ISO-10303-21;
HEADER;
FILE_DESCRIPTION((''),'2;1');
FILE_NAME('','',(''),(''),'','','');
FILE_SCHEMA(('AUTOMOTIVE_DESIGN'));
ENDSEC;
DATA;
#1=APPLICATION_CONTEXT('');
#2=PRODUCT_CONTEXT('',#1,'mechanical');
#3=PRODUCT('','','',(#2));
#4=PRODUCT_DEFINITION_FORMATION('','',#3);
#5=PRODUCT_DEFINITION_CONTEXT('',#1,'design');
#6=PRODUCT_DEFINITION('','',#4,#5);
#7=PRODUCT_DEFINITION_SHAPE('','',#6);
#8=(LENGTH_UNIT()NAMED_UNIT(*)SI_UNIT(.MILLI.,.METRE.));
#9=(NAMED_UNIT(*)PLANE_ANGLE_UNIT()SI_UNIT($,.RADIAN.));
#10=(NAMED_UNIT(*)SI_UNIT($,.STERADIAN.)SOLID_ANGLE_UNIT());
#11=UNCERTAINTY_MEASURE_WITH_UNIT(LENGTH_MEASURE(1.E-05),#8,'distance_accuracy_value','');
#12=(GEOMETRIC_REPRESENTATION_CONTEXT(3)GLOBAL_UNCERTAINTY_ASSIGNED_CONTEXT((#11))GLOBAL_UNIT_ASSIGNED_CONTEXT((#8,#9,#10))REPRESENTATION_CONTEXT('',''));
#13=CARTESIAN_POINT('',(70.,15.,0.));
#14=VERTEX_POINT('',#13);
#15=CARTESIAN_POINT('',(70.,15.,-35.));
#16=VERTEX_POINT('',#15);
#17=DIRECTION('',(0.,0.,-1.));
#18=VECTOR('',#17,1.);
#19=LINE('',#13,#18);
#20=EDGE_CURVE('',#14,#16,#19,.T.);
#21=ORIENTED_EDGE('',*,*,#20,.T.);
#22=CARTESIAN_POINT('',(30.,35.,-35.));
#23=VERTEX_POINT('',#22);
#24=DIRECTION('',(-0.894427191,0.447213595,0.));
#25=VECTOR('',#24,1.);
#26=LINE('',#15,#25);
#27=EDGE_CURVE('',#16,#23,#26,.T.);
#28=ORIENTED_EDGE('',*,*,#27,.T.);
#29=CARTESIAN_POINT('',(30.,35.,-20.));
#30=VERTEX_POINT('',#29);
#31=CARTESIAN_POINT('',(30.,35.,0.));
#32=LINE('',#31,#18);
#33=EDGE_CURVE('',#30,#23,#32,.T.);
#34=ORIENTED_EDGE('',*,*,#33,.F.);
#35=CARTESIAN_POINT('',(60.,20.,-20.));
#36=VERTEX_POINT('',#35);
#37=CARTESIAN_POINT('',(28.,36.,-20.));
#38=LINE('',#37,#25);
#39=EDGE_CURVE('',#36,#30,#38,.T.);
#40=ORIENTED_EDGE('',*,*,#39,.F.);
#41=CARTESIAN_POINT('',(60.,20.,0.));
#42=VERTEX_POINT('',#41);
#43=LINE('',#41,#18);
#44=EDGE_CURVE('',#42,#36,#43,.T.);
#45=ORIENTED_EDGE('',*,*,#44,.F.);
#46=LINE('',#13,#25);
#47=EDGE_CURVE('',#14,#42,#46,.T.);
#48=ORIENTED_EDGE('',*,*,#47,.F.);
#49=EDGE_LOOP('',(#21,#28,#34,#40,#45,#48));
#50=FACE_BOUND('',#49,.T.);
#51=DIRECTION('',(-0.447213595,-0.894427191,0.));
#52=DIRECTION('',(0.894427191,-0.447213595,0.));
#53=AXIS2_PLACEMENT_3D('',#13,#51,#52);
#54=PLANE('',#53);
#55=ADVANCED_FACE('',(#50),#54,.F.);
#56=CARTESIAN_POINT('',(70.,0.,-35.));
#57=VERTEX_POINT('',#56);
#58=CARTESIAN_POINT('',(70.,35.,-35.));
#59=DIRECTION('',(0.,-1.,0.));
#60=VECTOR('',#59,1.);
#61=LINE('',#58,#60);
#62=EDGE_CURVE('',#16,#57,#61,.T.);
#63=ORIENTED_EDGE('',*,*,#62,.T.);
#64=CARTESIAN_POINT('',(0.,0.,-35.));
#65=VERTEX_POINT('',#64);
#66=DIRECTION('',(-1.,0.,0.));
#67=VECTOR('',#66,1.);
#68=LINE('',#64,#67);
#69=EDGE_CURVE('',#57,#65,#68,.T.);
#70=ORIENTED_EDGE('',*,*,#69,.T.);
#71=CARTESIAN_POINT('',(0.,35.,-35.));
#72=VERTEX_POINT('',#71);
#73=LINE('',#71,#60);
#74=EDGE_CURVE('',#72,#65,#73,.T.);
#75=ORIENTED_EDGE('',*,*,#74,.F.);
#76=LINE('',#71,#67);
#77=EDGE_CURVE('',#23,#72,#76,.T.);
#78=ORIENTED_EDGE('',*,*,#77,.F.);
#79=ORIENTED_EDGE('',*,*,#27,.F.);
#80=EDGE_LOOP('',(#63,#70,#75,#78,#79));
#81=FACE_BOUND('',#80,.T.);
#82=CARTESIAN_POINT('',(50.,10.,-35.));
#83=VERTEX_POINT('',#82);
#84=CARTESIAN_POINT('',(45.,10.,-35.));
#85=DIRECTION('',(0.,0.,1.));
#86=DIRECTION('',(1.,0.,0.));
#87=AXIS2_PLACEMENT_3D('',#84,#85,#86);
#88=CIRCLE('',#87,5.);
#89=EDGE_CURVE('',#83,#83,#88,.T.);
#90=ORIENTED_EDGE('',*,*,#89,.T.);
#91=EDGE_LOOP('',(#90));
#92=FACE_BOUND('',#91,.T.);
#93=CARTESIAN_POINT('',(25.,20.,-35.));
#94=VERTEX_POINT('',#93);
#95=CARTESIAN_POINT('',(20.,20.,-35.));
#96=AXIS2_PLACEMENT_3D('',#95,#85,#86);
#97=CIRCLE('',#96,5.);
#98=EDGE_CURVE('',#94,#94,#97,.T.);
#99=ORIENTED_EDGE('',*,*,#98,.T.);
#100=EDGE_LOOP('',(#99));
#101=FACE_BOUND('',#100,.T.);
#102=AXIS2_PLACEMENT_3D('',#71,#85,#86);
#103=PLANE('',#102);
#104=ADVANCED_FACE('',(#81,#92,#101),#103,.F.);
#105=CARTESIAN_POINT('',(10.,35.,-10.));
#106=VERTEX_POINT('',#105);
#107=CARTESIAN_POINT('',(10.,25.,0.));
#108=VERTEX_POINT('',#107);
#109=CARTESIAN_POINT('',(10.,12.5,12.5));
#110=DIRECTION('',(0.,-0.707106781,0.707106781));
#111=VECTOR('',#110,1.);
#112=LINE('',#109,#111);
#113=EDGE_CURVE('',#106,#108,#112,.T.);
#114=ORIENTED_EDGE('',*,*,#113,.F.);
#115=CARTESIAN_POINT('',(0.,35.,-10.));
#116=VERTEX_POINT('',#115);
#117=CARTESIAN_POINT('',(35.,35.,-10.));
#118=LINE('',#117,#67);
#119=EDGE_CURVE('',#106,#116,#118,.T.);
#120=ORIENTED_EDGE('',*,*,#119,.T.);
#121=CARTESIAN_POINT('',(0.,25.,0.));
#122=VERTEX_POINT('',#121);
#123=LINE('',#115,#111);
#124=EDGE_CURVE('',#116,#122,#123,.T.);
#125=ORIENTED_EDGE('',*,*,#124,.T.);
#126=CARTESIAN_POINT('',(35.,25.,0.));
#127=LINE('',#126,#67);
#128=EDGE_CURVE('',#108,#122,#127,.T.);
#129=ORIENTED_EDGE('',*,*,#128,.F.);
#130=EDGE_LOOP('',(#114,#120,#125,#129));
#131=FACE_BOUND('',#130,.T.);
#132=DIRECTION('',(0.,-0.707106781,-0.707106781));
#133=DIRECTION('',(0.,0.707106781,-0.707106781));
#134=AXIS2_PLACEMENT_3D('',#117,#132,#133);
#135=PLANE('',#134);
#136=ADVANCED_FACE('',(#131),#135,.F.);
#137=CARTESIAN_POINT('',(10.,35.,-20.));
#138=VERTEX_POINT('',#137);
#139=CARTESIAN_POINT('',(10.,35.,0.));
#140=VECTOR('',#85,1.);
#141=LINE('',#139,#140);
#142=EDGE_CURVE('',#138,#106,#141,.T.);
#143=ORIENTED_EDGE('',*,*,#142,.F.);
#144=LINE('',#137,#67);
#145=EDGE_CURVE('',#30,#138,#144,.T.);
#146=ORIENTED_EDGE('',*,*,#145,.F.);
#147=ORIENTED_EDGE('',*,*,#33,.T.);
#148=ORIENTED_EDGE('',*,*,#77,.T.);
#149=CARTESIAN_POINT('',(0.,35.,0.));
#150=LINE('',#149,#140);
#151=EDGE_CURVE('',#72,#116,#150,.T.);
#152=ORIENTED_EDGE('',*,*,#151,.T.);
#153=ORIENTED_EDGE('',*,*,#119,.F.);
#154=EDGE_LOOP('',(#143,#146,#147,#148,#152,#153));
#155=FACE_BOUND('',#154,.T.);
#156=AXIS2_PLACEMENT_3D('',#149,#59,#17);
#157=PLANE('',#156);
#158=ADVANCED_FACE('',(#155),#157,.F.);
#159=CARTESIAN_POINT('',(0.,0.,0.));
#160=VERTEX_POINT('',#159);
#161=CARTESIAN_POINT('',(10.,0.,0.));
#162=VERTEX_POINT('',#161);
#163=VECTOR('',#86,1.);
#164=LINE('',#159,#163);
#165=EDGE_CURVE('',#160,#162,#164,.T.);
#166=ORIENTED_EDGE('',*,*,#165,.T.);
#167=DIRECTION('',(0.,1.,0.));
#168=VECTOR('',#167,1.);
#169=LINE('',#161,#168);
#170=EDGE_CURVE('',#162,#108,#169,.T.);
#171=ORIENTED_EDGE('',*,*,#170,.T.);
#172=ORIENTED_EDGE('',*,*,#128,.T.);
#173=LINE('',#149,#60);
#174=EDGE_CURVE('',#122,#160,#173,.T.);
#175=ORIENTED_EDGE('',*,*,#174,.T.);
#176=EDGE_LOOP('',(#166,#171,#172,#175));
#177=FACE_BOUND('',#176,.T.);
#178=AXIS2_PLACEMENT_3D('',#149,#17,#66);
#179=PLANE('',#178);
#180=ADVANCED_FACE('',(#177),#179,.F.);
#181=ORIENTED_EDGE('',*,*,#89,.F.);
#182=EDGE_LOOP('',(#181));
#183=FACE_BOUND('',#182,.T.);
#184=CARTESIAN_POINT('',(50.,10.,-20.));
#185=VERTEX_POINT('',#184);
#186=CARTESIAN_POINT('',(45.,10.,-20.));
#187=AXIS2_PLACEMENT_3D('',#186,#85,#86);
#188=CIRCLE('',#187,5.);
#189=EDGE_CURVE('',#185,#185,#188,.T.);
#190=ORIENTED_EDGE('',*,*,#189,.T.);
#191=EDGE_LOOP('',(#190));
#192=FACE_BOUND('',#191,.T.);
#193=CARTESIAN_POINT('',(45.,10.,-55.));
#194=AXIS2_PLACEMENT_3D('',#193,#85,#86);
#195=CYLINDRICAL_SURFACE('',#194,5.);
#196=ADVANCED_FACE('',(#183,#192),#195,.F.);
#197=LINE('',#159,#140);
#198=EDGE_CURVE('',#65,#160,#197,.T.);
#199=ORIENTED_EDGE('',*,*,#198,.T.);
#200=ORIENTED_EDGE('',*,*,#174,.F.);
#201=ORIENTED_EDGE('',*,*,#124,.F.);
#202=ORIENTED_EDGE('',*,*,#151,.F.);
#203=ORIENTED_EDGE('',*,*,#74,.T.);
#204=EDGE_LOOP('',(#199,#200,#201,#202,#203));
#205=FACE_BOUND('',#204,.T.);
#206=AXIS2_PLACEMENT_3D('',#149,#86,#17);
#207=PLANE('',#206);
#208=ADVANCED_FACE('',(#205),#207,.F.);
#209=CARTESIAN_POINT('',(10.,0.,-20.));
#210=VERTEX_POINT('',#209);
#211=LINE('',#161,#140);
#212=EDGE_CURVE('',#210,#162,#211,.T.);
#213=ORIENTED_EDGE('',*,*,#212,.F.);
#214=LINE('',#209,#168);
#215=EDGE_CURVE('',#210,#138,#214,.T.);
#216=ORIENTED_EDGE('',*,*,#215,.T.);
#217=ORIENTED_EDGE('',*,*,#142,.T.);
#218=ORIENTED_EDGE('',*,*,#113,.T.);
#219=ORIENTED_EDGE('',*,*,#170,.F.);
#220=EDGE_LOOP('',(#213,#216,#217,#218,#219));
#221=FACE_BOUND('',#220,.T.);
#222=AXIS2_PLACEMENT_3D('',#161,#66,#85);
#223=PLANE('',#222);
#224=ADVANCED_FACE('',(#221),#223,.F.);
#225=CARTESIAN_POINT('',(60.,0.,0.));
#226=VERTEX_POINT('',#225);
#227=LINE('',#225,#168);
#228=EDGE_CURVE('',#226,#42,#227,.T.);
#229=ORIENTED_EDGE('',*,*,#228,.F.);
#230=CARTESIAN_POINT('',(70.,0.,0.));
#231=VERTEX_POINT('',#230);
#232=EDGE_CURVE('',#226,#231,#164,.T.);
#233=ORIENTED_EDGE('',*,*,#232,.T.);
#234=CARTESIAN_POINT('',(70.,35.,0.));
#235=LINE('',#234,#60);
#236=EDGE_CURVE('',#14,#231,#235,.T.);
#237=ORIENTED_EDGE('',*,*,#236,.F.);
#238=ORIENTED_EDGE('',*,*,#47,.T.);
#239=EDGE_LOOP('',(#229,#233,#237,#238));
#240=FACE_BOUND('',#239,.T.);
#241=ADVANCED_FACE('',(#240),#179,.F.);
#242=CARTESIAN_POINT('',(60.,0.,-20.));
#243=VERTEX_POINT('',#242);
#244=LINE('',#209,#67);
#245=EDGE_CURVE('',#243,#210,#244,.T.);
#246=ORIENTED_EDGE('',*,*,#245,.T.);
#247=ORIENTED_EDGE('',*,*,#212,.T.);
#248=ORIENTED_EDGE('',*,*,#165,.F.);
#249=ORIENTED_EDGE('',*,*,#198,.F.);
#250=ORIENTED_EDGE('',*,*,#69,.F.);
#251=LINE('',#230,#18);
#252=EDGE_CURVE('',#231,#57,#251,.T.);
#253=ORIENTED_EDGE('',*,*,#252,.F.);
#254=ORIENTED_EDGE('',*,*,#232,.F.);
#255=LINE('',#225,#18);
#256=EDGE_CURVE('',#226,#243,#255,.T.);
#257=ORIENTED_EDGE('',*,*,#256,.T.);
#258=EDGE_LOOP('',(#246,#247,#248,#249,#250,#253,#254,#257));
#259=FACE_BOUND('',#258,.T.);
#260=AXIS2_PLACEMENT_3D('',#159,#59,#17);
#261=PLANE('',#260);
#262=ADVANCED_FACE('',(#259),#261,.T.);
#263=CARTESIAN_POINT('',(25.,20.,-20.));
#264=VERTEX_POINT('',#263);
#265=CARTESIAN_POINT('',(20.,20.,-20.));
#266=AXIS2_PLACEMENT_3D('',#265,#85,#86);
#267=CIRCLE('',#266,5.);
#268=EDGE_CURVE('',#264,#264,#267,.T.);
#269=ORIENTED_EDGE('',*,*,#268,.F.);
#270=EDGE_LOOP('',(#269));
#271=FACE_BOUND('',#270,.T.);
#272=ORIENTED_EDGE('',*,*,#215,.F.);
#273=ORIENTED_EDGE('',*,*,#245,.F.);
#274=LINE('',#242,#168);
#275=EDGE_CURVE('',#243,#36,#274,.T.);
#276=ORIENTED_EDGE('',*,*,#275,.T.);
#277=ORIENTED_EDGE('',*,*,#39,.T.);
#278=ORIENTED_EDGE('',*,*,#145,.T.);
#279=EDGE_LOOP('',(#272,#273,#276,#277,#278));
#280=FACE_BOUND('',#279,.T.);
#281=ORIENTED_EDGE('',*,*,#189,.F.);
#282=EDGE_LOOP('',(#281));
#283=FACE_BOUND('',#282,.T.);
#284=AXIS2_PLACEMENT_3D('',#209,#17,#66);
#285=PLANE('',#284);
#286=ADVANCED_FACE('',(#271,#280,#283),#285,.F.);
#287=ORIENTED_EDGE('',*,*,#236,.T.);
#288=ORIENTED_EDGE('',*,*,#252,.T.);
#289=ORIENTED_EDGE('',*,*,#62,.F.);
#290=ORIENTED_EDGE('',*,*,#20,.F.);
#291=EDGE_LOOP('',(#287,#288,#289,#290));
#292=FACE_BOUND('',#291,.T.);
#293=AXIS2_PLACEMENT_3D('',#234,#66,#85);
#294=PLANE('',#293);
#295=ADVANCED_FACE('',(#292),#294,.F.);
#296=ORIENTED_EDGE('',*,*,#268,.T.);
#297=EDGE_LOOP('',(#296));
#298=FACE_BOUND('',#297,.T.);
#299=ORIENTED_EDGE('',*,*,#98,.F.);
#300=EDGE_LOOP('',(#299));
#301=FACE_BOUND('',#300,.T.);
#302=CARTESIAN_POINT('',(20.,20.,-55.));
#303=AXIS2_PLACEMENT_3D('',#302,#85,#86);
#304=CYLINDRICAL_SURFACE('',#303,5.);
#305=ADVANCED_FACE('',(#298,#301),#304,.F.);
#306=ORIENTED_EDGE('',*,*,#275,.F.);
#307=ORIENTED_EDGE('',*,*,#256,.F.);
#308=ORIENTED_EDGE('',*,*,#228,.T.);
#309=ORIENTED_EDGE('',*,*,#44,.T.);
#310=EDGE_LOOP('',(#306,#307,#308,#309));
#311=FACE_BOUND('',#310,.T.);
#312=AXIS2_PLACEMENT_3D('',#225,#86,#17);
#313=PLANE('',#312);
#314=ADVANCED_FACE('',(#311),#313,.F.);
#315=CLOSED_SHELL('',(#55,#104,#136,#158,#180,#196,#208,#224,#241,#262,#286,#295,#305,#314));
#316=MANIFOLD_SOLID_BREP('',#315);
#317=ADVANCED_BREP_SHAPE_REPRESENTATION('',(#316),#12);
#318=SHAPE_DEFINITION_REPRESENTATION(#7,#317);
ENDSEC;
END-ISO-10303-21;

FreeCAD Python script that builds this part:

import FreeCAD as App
import Part
import Sketcher
from FreeCAD import Vector

doc = App.newDocument("Part")
body = doc.addObject("PartDesign::Body", "Body")

# Sketch on XZ plane
sketch1 = body.newObject("Sketcher::SketchObject", "Sketch")
sketch1.AttachmentSupport = (doc.getObject("XZ_Plane"), [""])
sketch1.MapMode = "FlatFace"
sketch1.addGeometry([
    Part.LineSegment(Vector(0, -35, 0), Vector(0, 0, 0)),
    Part.LineSegment(Vector(0, 0, 0), Vector(70, 0, 0)),
    Part.LineSegment(Vector(70, 0, 0), Vector(70, -35, 0)),
    Part.LineSegment(Vector(70, -35, 0), Vector(0, -35, 0)),
], False)
sketch1.addConstraint([
    Sketcher.Constraint("Coincident", 0, 2, 1, 1),
    Sketcher.Constraint("Coincident", 1, 2, 2, 1),
    Sketcher.Constraint("Coincident", 2, 2, 3, 1),
    Sketcher.Constraint("Coincident", 3, 2, 0, 1),
    Sketcher.Constraint("Vertical", 0),
    Sketcher.Constraint("Horizontal", 1),
    Sketcher.Constraint("Vertical", 2),
    Sketcher.Constraint("Horizontal", 3),
    Sketcher.Constraint("Coincident", 0, 2, -1, 1),
    Sketcher.Constraint("DistanceX", 1, 1, 1, 2, 70.0),
    Sketcher.Constraint("DistanceY", 0, 1, 0, 2, 35.0),
])
pad1 = body.newObject("PartDesign::Pad", "Pad")
pad1.Profile = sketch1
pad1.Length = 35
pad1.Reversed = True

# Sketch on XZ plane
sketch2 = body.newObject("Sketcher::SketchObject", "Sketch001")
sketch2.AttachmentSupport = (doc.getObject("XZ_Plane"), [""])
sketch2.MapMode = "FlatFace"
sketch2.AttachmentOffset = App.Placement(Vector(0, 0, -35), App.Rotation())
sketch2.addGeometry([
    Part.LineSegment(Vector(10, -20, 0), Vector(10, 0, 0)),
    Part.LineSegment(Vector(10, 0, 0), Vector(60, 0, 0)),
    Part.LineSegment(Vector(60, 0, 0), Vector(60, -20, 0)),
    Part.LineSegment(Vector(60, -20, 0), Vector(10, -20, 0)),
], False)
sketch2.addConstraint([
    Sketcher.Constraint("Coincident", 0, 2, 1, 1),
    Sketcher.Constraint("Coincident", 1, 2, 2, 1),
    Sketcher.Constraint("Coincident", 2, 2, 3, 1),
    Sketcher.Constraint("Coincident", 3, 2, 0, 1),
    Sketcher.Constraint("Vertical", 0),
    Sketcher.Constraint("Horizontal", 1),
    Sketcher.Constraint("Vertical", 2),
    Sketcher.Constraint("Horizontal", 3),
    Sketcher.Constraint("PointOnObject", 0, 2, -1),
    Sketcher.Constraint("DistanceX", 1, 1, 1, 2, 50.0),
    Sketcher.Constraint("DistanceY", 0, 1, 0, 2, 20.0),
    Sketcher.Constraint("DistanceX", -1, 1, 0, 2, 10.0),
])
pocket1 = body.newObject("PartDesign::Pocket", "Pocket")
pocket1.Profile = sketch2
pocket1.Type = "ThroughAll"
pocket1.Reversed = True

# Sketch on XY plane
sketch3 = body.newObject("Sketcher::SketchObject", "Sketch002")
sketch3.AttachmentSupport = (doc.getObject("XY_Plane"), [""])
sketch3.MapMode = "FlatFace"
sketch3.AttachmentOffset = App.Placement(Vector(0, 0, -35), App.Rotation())
sketch3.addGeometry([
    Part.LineSegment(Vector(70, 35, 0), Vector(70, 15, 0)),
    Part.LineSegment(Vector(70, 15, 0), Vector(30, 35, 0)),
    Part.LineSegment(Vector(30, 35, 0), Vector(70, 35, 0)),
], False)
sketch3.addConstraint([
    Sketcher.Constraint("Coincident", 0, 2, 1, 1),
    Sketcher.Constraint("Coincident", 1, 2, 2, 1),
    Sketcher.Constraint("Coincident", 2, 2, 0, 1),
    Sketcher.Constraint("Vertical", 0),
    Sketcher.Constraint("Horizontal", 2),
    Sketcher.Constraint("DistanceX", 2, 1, 2, 2, 40.0),
    Sketcher.Constraint("DistanceY", 0, 2, 0, 1, 20.0),
    Sketcher.Constraint("DistanceX", -1, 1, 0, 2, 70.0),
    Sketcher.Constraint("DistanceY", -1, 1, 0, 2, 15.0),
])
pocket2 = body.newObject("PartDesign::Pocket", "Pocket001")
pocket2.Profile = sketch3
pocket2.Type = "ThroughAll"
pocket2.Reversed = True

# Sketch on YZ plane
sketch4 = body.newObject("Sketcher::SketchObject", "Sketch003")
sketch4.AttachmentSupport = (doc.getObject("YZ_Plane"), [""])
sketch4.MapMode = "FlatFace"
sketch4.addGeometry([
    Part.LineSegment(Vector(35, 0, 0), Vector(35, -10, 0)),
    Part.LineSegment(Vector(35, -10, 0), Vector(25, 0, 0)),
    Part.LineSegment(Vector(25, 0, 0), Vector(35, 0, 0)),
], False)
sketch4.addConstraint([
    Sketcher.Constraint("Coincident", 0, 2, 1, 1),
    Sketcher.Constraint("Coincident", 1, 2, 2, 1),
    Sketcher.Constraint("Coincident", 2, 2, 0, 1),
    Sketcher.Constraint("Vertical", 0),
    Sketcher.Constraint("Horizontal", 2),
    Sketcher.Constraint("PointOnObject", 1, 2, -1),
    Sketcher.Constraint("Equal", 2, 0),
    Sketcher.Constraint("DistanceX", 2, 1, 2, 2, 10.0),
    Sketcher.Constraint("DistanceX", -1, 1, 0, 2, 35.0),
])
pocket3 = body.newObject("PartDesign::Pocket", "Pocket002")
pocket3.Profile = sketch4
pocket3.Length = 35
pocket3.Reversed = True

# Sketch on XY plane
sketch5 = body.newObject("Sketcher::SketchObject", "Sketch004")
sketch5.AttachmentSupport = (doc.getObject("XY_Plane"), [""])
sketch5.MapMode = "FlatFace"
sketch5.AttachmentOffset = App.Placement(Vector(0, 0, -20), App.Rotation())
sketch5.addGeometry(Part.Circle(Vector(20, 20, 0), Vector(0, 0, 1), 5), False)
sketch5.addConstraint([
    Sketcher.Constraint("Diameter", 0, 10.0),
    Sketcher.Constraint("DistanceX", -1, 1, 0, 3, 20.0),
    Sketcher.Constraint("DistanceY", -1, 1, 0, 3, 20.0),
])
pocket4 = body.newObject("PartDesign::Pocket", "Pocket003")
pocket4.Profile = sketch5
pocket4.Length = 35

# Sketch on XY plane
sketch6 = body.newObject("Sketcher::SketchObject", "Sketch005")
sketch6.AttachmentSupport = (doc.getObject("XY_Plane"), [""])
sketch6.MapMode = "FlatFace"
sketch6.AttachmentOffset = App.Placement(Vector(0, 0, -20), App.Rotation())
sketch6.addGeometry(Part.Circle(Vector(45, 10, 0), Vector(0, 0, 1), 5), False)
sketch6.addConstraint([
    Sketcher.Constraint("Diameter", 0, 10.0),
    Sketcher.Constraint("DistanceX", -1, 1, 0, 3, 45.0),
    Sketcher.Constraint("DistanceY", -1, 1, 0, 3, 10.0),
])
pocket5 = body.newObject("PartDesign::Pocket", "Pocket004")
pocket5.Profile = sketch6
pocket5.Length = 35

doc.recompute()
